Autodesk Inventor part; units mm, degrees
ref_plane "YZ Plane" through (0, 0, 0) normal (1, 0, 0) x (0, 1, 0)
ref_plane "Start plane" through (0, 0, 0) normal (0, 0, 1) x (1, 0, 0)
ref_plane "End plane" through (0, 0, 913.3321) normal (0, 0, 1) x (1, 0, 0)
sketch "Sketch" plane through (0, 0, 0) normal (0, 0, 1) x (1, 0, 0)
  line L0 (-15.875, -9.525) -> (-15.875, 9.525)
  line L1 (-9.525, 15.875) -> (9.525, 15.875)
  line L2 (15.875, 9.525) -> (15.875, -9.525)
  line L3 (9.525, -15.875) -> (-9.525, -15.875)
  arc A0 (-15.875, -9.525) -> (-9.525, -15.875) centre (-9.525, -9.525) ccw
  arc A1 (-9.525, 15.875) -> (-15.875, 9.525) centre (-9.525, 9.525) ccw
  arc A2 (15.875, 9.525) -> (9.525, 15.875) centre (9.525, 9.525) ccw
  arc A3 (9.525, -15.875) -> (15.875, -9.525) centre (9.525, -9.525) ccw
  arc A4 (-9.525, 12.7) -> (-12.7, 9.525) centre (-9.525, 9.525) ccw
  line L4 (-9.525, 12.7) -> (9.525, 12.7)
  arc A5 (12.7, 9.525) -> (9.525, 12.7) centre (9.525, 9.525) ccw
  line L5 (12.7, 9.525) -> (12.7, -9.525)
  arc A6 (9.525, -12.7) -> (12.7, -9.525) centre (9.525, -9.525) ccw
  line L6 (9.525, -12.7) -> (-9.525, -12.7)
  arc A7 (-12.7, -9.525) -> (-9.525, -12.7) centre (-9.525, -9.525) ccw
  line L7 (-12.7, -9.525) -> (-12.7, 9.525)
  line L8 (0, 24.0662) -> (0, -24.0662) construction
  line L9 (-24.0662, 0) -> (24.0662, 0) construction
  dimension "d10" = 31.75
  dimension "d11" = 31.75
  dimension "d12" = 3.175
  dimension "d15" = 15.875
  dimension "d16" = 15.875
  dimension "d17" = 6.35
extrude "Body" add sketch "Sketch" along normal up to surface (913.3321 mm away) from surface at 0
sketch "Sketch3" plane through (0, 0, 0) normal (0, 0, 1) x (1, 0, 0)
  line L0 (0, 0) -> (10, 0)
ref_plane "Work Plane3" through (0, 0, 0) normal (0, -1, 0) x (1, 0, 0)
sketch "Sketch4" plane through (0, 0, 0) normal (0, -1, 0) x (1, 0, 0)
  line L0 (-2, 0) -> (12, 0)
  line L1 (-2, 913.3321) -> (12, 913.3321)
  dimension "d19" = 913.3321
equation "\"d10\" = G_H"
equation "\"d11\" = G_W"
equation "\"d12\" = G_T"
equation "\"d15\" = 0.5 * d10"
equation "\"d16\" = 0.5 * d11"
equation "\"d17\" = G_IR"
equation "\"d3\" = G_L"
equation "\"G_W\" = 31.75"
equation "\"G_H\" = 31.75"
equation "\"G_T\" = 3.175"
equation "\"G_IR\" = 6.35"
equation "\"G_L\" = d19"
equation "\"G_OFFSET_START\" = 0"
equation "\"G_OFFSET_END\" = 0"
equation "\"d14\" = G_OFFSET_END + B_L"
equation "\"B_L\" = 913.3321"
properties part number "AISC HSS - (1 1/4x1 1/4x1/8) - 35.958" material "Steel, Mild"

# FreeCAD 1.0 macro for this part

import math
import FreeCAD as App
import Part
import Sketcher

V = App.Vector
Q = App.Units.Quantity

doc = App.newDocument("Part")
body = doc.addObject("PartDesign::Body", "Body")

# Sketch on XY plane
sketch1 = doc.addObject("Sketcher::SketchObject", "Sketch")
body.addObject(sketch1)
sketch1.AttachmentSupport = (doc.XY_Plane, [""])
sketch1.MapMode = "FlatFace"
sketch1.addGeometry([
    Part.LineSegment(V(-15.9, 9.5, 0), V(-15.9, -9.5, 0)),  # 0
    Part.ArcOfCircle(Part.Circle(V(-9.5, -9.5, 0), V(0, 0, 1), 6.3), math.radians(180), math.radians(270)),  # 1
    Part.LineSegment(V(-9.5, -15.9, 0), V(9.5, -15.9, 0)),  # 2
    Part.ArcOfCircle(Part.Circle(V(9.5, -9.5, 0), V(0, 0, 1), 6.3), math.radians(-90), math.radians(0)),  # 3
    Part.LineSegment(V(15.9, -9.5, 0), V(15.9, 9.5, 0)),  # 4
    Part.ArcOfCircle(Part.Circle(V(9.5, 9.5, 0), V(0, 0, 1), 6.3), math.radians(0), math.radians(90)),  # 5
    Part.LineSegment(V(9.5, 15.9, 0), V(-9.5, 15.9, 0)),  # 6
    Part.ArcOfCircle(Part.Circle(V(-9.5, 9.5, 0), V(0, 0, 1), 6.3), math.radians(90), math.radians(180)),  # 7
    Part.ArcOfCircle(Part.Circle(V(-9.5, 9.5, 0), V(0, 0, 1), 3.2), math.radians(90), math.radians(180)),  # 8
    Part.LineSegment(V(-9.5, 12.7, 0), V(9.5, 12.7, 0)),  # 9
    Part.ArcOfCircle(Part.Circle(V(9.5, 9.5, 0), V(0, 0, 1), 3.2), math.radians(0), math.radians(90)),  # 10
    Part.LineSegment(V(12.7, 9.5, 0), V(12.7, -9.5, 0)),  # 11
    Part.ArcOfCircle(Part.Circle(V(9.5, -9.5, 0), V(0, 0, 1), 3.2), math.radians(-90), math.radians(0)),  # 12
    Part.LineSegment(V(9.5, -12.7, 0), V(-9.5, -12.7, 0)),  # 13
    Part.ArcOfCircle(Part.Circle(V(-9.5, -9.5, 0), V(0, 0, 1), 3.2), math.radians(180), math.radians(270)),  # 14
    Part.LineSegment(V(-12.7, -9.5, 0), V(-12.7, 9.5, 0)),  # 15
], False)
sketch1.addConstraint([
    Sketcher.Constraint("Tangent", 0, 2, 1, 1),
    Sketcher.Constraint("Tangent", 1, 2, 2, 1),
    Sketcher.Constraint("Tangent", 2, 2, 3, 1),
    Sketcher.Constraint("Tangent", 3, 2, 4, 1),
    Sketcher.Constraint("Tangent", 4, 2, 5, 1),
    Sketcher.Constraint("Tangent", 5, 2, 6, 1),
    Sketcher.Constraint("Tangent", 6, 2, 7, 1),
    Sketcher.Constraint("Tangent", 7, 2, 0, 1),
    Sketcher.Constraint("Tangent", 8, 1, 9, 1),
    Sketcher.Constraint("Tangent", 9, 2, 10, 2),
    Sketcher.Constraint("Tangent", 10, 1, 11, 1),
    Sketcher.Constraint("Tangent", 11, 2, 12, 2),
    Sketcher.Constraint("Tangent", 12, 1, 13, 1),
    Sketcher.Constraint("Tangent", 13, 2, 14, 2),
    Sketcher.Constraint("Tangent", 14, 1, 15, 1),
    Sketcher.Constraint("Tangent", 15, 2, 8, 2),
    Sketcher.Constraint("Vertical", 0),
    Sketcher.Constraint("Horizontal", 2),
    Sketcher.Constraint("Vertical", 4),
    Sketcher.Constraint("Horizontal", 6),
    Sketcher.Constraint("Horizontal", 9),
    Sketcher.Constraint("Vertical", 11),
    Sketcher.Constraint("Horizontal", 13),
    Sketcher.Constraint("Vertical", 15),
    Sketcher.Constraint("Coincident", 8, 3, 7, 3),
    Sketcher.Constraint("Coincident", 10, 3, 5, 3),
    Sketcher.Constraint("Coincident", 12, 3, 3, 3),
    Sketcher.Constraint("Equal", 1, 3),
    Sketcher.Constraint("Equal", 3, 5),
    Sketcher.Constraint("Equal", 5, 7),
    Sketcher.Constraint("Equal", 12, 14),
    Sketcher.Constraint("Symmetric", 1, 3, 5, 3, -1, 1),
    Sketcher.Constraint("Equal", 13, 0),
    Sketcher.Constraint("Radius", 1, Q("0.25 in")),
    Sketcher.Constraint("Radius", 8, Q("0.125 in")),
    Sketcher.Constraint("DistanceX", 0, 2, -1, 1, Q("0.625 in")),
])
pad1 = doc.addObject("PartDesign::Pad", "Pad")
body.addObject(pad1)
pad1.Profile = sketch1
pad1.Length = 913.3321

doc.recompute()
